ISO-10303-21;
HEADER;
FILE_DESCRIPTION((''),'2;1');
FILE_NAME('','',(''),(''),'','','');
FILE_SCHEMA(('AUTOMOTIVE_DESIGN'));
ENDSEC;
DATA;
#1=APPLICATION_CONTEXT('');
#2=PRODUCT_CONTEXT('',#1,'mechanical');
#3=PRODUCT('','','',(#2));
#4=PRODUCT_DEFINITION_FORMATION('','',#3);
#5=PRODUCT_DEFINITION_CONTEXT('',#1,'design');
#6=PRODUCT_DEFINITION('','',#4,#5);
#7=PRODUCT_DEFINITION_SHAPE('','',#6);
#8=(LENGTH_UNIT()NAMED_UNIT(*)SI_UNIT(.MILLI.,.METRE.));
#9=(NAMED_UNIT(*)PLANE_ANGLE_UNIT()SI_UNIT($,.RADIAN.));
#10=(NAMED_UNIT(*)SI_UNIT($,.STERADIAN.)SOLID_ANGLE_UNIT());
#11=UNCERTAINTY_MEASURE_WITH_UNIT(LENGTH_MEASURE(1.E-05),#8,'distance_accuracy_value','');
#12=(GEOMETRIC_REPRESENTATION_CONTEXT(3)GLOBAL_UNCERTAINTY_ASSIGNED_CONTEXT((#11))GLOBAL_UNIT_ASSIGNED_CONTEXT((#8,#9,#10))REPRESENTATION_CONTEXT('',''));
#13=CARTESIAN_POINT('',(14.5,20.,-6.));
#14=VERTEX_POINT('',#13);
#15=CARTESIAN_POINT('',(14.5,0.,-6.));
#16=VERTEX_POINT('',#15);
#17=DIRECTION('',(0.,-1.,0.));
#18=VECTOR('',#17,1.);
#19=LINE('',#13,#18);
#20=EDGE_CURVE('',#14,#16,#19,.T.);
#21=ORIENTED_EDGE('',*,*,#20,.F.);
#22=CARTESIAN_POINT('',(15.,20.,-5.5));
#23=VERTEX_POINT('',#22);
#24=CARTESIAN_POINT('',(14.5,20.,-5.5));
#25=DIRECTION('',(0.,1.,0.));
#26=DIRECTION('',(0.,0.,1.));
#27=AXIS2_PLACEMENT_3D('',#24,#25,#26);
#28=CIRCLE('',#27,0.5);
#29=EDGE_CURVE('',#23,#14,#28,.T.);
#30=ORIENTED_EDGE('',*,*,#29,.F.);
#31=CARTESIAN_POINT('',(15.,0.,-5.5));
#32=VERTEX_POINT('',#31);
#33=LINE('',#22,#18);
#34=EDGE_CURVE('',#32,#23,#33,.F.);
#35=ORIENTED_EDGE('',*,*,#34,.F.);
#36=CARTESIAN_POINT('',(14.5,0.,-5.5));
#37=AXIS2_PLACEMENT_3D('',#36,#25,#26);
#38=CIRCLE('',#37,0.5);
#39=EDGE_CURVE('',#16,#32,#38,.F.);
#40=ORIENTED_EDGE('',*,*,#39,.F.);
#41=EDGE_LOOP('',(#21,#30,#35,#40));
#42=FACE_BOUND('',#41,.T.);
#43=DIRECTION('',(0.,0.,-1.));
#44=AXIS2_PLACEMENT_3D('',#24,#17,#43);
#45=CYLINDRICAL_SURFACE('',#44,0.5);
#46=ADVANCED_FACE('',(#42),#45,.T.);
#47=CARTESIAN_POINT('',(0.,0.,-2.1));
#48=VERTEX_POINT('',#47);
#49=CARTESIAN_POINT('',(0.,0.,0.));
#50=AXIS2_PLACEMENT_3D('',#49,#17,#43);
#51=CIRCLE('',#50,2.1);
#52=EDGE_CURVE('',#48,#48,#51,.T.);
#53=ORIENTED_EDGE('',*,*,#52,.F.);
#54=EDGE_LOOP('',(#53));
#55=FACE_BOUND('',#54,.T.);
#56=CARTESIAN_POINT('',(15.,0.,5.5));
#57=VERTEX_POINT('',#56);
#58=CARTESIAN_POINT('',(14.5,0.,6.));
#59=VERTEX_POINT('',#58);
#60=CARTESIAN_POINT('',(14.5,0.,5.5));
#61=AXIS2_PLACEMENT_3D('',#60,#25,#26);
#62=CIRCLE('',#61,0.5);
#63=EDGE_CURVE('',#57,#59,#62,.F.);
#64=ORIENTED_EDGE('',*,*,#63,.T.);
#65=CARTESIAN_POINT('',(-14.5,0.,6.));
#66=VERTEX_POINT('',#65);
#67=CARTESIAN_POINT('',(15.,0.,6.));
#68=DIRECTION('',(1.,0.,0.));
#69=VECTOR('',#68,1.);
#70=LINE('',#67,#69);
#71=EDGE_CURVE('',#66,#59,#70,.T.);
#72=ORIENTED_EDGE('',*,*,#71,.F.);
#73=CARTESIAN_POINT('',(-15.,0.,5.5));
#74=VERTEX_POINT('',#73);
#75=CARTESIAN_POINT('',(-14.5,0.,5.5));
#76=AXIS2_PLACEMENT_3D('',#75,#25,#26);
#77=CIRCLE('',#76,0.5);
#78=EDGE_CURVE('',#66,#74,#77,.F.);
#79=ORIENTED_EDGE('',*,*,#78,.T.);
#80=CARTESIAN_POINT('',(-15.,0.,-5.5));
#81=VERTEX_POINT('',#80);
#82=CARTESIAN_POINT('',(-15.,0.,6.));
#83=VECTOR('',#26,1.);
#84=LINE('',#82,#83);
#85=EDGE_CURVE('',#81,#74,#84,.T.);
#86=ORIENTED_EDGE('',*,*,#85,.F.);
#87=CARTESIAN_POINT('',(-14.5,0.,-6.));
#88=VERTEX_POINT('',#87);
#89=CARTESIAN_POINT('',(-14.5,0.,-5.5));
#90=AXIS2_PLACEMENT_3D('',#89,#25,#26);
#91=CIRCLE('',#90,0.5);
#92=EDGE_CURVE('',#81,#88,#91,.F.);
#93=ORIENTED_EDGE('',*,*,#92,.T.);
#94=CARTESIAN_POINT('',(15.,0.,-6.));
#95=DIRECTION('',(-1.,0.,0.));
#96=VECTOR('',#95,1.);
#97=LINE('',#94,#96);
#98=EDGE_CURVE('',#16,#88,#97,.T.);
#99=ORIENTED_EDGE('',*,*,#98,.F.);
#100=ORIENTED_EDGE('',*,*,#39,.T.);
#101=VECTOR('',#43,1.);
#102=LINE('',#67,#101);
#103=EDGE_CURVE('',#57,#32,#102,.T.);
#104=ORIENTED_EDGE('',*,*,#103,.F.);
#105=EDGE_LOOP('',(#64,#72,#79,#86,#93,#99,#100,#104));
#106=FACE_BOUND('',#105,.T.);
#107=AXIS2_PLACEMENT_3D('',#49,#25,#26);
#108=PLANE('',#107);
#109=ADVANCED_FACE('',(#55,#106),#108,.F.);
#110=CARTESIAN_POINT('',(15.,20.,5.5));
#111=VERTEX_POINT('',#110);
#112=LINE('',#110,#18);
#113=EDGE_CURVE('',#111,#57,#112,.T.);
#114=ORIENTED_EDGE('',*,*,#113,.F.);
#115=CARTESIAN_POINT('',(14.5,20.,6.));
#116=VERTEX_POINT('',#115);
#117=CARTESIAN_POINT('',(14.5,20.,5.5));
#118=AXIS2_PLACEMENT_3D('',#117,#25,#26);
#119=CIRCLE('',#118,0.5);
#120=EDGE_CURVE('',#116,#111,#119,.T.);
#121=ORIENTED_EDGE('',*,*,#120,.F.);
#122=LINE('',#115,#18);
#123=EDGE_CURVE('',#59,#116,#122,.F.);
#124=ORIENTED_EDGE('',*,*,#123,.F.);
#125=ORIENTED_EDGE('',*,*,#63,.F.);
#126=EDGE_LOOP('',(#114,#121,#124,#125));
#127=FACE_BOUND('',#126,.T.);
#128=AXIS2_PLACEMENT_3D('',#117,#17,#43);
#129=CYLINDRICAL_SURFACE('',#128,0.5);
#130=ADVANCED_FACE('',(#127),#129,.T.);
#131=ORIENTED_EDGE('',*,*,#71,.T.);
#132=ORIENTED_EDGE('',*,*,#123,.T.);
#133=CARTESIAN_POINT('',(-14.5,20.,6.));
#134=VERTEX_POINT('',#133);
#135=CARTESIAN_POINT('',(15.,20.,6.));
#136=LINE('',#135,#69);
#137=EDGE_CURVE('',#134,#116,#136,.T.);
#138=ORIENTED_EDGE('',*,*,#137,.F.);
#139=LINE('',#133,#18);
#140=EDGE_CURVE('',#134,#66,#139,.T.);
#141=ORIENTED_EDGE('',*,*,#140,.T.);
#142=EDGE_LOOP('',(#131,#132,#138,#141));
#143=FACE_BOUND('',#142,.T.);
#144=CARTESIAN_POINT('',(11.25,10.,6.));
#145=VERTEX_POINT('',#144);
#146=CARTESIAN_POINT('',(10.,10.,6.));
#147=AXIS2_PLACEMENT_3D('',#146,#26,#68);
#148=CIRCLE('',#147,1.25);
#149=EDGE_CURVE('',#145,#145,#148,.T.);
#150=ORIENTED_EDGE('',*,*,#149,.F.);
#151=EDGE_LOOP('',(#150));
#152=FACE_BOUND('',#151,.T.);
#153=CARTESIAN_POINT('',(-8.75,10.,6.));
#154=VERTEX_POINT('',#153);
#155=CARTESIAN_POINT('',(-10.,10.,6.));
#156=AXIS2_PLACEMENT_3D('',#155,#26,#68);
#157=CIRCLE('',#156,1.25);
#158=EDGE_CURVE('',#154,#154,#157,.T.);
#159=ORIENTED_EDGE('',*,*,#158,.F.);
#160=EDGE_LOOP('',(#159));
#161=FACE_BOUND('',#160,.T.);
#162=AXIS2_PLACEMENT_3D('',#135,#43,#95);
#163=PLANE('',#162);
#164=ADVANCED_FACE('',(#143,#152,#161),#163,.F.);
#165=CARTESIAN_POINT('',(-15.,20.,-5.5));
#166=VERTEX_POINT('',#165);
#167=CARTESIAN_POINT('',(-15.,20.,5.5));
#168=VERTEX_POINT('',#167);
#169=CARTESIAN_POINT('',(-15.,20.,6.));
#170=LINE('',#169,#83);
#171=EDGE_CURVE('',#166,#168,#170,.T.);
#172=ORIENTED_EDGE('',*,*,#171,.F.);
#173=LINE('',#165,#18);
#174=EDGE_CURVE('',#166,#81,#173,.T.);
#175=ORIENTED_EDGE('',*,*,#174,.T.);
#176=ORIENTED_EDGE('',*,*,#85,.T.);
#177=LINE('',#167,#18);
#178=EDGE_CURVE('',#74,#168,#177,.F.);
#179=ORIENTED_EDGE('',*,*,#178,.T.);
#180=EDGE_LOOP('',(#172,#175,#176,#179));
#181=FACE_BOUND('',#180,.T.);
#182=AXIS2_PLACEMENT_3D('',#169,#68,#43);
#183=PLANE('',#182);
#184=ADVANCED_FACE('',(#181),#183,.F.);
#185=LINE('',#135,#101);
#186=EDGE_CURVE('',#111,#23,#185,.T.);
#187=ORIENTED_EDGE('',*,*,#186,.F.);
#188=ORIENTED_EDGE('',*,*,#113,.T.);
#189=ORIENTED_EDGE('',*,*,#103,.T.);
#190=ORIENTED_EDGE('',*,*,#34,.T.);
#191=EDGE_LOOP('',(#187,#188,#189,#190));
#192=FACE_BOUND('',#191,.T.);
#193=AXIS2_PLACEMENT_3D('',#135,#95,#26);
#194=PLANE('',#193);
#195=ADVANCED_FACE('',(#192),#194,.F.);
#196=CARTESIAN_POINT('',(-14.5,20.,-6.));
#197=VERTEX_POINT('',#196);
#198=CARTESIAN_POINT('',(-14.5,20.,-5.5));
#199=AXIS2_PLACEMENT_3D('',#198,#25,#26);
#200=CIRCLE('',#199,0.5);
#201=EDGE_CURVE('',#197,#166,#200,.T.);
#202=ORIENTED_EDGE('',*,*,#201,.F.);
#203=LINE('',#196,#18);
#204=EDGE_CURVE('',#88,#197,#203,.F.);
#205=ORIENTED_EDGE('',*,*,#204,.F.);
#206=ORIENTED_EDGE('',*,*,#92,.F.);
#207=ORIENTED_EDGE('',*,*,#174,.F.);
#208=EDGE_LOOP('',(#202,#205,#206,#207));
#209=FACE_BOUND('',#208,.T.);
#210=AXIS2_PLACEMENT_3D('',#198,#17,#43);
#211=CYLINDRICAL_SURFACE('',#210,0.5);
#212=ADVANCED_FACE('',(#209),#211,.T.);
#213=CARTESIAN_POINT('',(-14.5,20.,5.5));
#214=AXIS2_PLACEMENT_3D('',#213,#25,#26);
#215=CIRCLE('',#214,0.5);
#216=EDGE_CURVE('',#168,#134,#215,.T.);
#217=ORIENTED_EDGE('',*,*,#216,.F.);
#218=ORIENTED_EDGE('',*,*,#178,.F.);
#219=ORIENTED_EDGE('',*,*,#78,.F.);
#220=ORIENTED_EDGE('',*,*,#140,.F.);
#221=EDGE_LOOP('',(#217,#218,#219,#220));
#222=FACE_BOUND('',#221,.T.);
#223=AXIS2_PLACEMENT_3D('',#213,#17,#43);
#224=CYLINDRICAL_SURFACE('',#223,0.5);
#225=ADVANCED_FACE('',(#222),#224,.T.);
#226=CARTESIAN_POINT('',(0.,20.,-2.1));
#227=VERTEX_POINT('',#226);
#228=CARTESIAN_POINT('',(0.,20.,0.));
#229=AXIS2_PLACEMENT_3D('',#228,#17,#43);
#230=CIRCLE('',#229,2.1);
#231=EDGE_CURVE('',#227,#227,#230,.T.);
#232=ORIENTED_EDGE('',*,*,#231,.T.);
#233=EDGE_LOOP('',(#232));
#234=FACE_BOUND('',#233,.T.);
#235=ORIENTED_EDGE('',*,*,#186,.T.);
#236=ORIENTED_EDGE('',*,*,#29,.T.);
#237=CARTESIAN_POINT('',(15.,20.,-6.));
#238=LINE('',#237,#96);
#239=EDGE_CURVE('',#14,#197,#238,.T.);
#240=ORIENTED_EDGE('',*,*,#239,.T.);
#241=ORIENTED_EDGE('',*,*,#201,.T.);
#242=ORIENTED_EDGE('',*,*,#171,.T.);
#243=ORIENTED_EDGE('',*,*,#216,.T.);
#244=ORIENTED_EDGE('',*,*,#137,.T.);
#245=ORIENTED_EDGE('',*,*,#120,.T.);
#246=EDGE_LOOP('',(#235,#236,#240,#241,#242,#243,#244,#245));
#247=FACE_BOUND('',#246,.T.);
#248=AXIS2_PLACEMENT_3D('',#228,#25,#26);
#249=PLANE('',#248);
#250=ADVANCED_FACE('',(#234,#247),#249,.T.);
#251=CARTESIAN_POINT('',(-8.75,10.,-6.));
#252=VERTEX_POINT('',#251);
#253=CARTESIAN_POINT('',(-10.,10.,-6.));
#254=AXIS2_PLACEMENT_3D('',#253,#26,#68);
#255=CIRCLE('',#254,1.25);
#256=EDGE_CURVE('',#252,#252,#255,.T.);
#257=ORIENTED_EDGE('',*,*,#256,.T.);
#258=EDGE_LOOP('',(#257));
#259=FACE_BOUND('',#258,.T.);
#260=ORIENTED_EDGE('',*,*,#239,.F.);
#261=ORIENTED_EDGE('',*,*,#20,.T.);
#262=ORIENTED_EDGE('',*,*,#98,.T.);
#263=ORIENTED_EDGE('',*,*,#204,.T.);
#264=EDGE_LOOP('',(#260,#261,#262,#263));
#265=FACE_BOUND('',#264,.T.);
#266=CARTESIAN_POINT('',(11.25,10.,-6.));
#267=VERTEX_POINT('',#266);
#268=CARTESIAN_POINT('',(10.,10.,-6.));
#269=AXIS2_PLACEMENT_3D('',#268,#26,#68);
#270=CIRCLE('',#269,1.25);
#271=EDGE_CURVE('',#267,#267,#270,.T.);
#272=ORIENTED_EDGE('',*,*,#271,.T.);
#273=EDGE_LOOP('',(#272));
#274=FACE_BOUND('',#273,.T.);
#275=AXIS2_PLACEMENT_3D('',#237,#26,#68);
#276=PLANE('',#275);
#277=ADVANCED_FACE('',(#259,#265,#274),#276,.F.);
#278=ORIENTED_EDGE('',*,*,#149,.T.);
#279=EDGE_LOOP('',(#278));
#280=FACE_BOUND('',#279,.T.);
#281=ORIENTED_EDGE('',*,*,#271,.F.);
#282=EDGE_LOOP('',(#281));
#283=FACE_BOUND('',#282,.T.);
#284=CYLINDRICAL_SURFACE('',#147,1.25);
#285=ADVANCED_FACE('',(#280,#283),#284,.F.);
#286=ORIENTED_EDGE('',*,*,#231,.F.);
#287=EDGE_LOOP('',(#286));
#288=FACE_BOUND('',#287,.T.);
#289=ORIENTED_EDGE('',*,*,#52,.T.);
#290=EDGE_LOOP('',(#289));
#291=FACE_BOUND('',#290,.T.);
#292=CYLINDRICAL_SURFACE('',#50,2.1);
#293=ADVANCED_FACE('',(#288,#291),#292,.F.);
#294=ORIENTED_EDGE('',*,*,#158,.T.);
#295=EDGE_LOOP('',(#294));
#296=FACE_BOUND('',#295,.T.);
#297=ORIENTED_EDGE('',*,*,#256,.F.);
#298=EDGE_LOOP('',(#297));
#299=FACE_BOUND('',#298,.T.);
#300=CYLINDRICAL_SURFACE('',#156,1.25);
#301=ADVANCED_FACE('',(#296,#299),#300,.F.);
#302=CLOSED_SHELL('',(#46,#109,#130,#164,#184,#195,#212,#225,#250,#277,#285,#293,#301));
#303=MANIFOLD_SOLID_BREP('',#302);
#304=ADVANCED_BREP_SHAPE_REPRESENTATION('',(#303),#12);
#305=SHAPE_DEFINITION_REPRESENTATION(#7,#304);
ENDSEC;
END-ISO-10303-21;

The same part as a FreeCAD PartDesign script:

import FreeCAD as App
import Part
import Sketcher
from FreeCAD import Vector


def edges_at(feature, points):
    """Names of the edges that pass closest to the given points."""
    edges = feature.Shape.Edges
    near = lambda p: min(range(len(edges)), key=lambda i: edges[i].distToShape(Part.Vertex(*p))[0])
    return sorted({f"Edge{near(p) + 1}" for p in points})

doc = App.newDocument("Part")
body = doc.addObject("PartDesign::Body", "Body")

# Sketch on XZ plane
sketch1 = body.newObject("Sketcher::SketchObject", "Sketch")
sketch1.AttachmentSupport = (doc.getObject("XZ_Plane"), [""])
sketch1.MapMode = "FlatFace"
sketch1.addGeometry([
    Part.LineSegment(Vector(-15, -6, 0), Vector(-15, 6, 0)),
    Part.LineSegment(Vector(-15, 6, 0), Vector(15, 6, 0)),
    Part.LineSegment(Vector(15, 6, 0), Vector(15, -6, 0)),
    Part.LineSegment(Vector(15, -6, 0), Vector(-15, -6, 0)),
], False)
sketch1.addConstraint([
    Sketcher.Constraint("Coincident", 0, 2, 1, 1),
    Sketcher.Constraint("Coincident", 1, 2, 2, 1),
    Sketcher.Constraint("Coincident", 2, 2, 3, 1),
    Sketcher.Constraint("Coincident", 3, 2, 0, 1),
    Sketcher.Constraint("Vertical", 0),
    Sketcher.Constraint("Horizontal", 1),
    Sketcher.Constraint("Vertical", 2),
    Sketcher.Constraint("Horizontal", 3),
    Sketcher.Constraint("Symmetric", 0, 2, 2, 2, -1, 1),
    Sketcher.Constraint("DistanceX", 1, 1, 1, 2, 30.0),
    Sketcher.Constraint("DistanceY", 0, 1, 0, 2, 12.0),
])
pad1 = body.newObject("PartDesign::Pad", "Pad")
pad1.Profile = sketch1
pad1.Length = 20
pad1.Reversed = True

# Sketch on XZ plane
sketch2 = body.newObject("Sketcher::SketchObject", "Sketch001")
sketch2.AttachmentSupport = (doc.getObject("XZ_Plane"), [""])
sketch2.MapMode = "FlatFace"
sketch2.addGeometry(Part.Circle(Vector(0, 0, 0), Vector(0, 0, 1), 2.1), False)
sketch2.addConstraint([
    Sketcher.Constraint("Coincident", 0, 3, -1, 1),
    Sketcher.Constraint("Diameter", 0, 4.2),
])
doc.recompute()
hole = body.newObject("PartDesign::Hole", "Hole")
hole.Profile = sketch2
hole.ThreadType = "None"
hole.Diameter = 4.2
hole.DepthType = "ThroughAll"

# Sketch on XY plane
sketch3 = body.newObject("Sketcher::SketchObject", "Sketch002")
sketch3.AttachmentSupport = (doc.getObject("XY_Plane"), [""])
sketch3.MapMode = "FlatFace"
sketch3.AttachmentOffset = App.Placement(Vector(0, 0, 6), App.Rotation())
sketch3.addGeometry([
    Part.Circle(Vector(-10, 10, 0), Vector(0, 0, 1), 1.2),
    Part.Circle(Vector(10, 10, 0), Vector(0, 0, 1), 1.2),
], False)
sketch3.addConstraint([
    Sketcher.Constraint("Equal", 0, 1),
    Sketcher.Constraint("Symmetric", 0, 3, 1, 3, -2),
    Sketcher.Constraint("Diameter", 0, 2.5),
    Sketcher.Constraint("DistanceX", 0, 3, -1, 1, 10.0),
    Sketcher.Constraint("DistanceY", -1, 1, 0, 3, 10.0),
])
doc.recompute()
hole2 = body.newObject("PartDesign::Hole", "Hole001")
hole2.Profile = sketch3
hole2.ThreadType = "None"
hole2.Diameter = 2.5
hole2.DepthType = "ThroughAll"
doc.recompute()

fillet = body.newObject("PartDesign::Fillet", "Fillet")
fillet.Base = (hole2, edges_at(hole2, [
    (-15, 10, -6),
    (15, 10, -6),
    (15, 10, 6),
    (-15, 10, 6),
]))
fillet.Radius = 0.5

doc.recompute()
